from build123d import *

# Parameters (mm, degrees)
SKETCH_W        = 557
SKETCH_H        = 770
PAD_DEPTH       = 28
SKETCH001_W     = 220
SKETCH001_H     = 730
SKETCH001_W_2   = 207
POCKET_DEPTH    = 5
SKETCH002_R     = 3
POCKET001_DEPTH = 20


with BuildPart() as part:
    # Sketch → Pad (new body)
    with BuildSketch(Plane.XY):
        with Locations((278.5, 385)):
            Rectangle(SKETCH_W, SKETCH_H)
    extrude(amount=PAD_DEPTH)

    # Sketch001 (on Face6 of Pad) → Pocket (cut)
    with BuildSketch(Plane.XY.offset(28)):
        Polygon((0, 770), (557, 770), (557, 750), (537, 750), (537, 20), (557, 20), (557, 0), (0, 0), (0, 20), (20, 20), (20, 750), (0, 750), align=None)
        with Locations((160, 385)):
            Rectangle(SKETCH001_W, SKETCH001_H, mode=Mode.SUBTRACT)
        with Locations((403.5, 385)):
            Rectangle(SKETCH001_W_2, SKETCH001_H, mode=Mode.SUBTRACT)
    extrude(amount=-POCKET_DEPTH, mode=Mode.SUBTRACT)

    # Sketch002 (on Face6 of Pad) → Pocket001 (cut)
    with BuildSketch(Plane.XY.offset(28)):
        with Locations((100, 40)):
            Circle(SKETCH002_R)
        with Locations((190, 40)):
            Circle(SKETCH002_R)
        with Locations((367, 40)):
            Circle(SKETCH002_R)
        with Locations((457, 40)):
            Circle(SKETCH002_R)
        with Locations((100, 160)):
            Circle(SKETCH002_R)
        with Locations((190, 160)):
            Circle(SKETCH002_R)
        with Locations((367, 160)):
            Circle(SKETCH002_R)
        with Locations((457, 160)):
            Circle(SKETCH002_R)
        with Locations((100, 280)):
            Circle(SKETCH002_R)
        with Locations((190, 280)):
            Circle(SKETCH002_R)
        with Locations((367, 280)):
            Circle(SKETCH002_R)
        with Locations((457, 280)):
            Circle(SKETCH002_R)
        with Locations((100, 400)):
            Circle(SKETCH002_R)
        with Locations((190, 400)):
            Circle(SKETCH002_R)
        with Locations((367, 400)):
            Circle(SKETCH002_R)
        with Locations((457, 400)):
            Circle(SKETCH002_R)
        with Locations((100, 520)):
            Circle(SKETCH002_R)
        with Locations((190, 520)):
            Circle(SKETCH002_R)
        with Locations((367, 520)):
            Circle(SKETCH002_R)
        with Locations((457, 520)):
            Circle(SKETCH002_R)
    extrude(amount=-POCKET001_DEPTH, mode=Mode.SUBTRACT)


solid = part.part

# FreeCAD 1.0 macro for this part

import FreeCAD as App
import Part
import Sketcher
from FreeCAD import Vector
Q = App.Units.Quantity

doc = App.newDocument("Part")
body = doc.addObject("PartDesign::Body", "Body")

# Sketch on XY plane
sketch1 = doc.addObject("Sketcher::SketchObject", "Sketch")
body.addObject(sketch1)
sketch1.AttachmentSupport = (doc.XY_Plane, [""])
sketch1.MapMode = "FlatFace"
sketch1.addGeometry([
    Part.LineSegment(Vector(0, 770, 0), Vector(0, 0, 0)),
    Part.LineSegment(Vector(0, 0, 0), Vector(557, 0, 0)),
    Part.LineSegment(Vector(557, 0, 0), Vector(557, 770, 0)),
    Part.LineSegment(Vector(557, 770, 0), Vector(0, 770, 0)),
], False)
sketch1.addConstraint([
    Sketcher.Constraint("Coincident", 0, 2, 1, 1),
    Sketcher.Constraint("Coincident", 1, 2, 2, 1),
    Sketcher.Constraint("Coincident", 2, 2, 3, 1),
    Sketcher.Constraint("Coincident", 3, 2, 0, 1),
    Sketcher.Constraint("Vertical", 0),
    Sketcher.Constraint("Horizontal", 1),
    Sketcher.Constraint("Vertical", 2),
    Sketcher.Constraint("Horizontal", 3),
    Sketcher.Constraint("Coincident", 0, 2, -1, 1),
    Sketcher.Constraint("DistanceX", 1, 1, 1, 2, Q("557 mm")),
    Sketcher.Constraint("DistanceY", 0, 2, 0, 1, Q("770 mm")),
])
pad1 = doc.addObject("PartDesign::Pad", "Pad")
body.addObject(pad1)
pad1.Profile = sketch1
pad1.Length = 28

# Sketch on XY plane
sketch2 = doc.addObject("Sketcher::SketchObject", "Sketch001")
body.addObject(sketch2)
sketch2.AttachmentSupport = (doc.XY_Plane, [""])
sketch2.MapMode = "FlatFace"
sketch2.AttachmentOffset = App.Placement(Vector(0, 0, 28), App.Rotation())
sketch2.addGeometry([
    Part.LineSegment(Vector(557, 770, 0), Vector(0, 770, 0)),  # 0
    Part.LineSegment(Vector(0, 770, 0), Vector(0, 750, 0)),  # 1
    Part.LineSegment(Vector(0, 750, 0), Vector(20, 750, 0)),  # 2
    Part.LineSegment(Vector(20, 750, 0), Vector(20, 20, 0)),  # 3
    Part.LineSegment(Vector(20, 20, 0), Vector(0, 20, 0)),  # 4
    Part.LineSegment(Vector(0, 20, 0), Vector(0, 0, 0)),  # 5
    Part.LineSegment(Vector(0, 0, 0), Vector(557, 0, 0)),  # 6
    Part.LineSegment(Vector(557, 0, 0), Vector(557, 20, 0)),  # 7
    Part.LineSegment(Vector(557, 20, 0), Vector(537, 20, 0)),  # 8
    Part.LineSegment(Vector(537, 20, 0), Vector(537, 750, 0)),  # 9
    Part.LineSegment(Vector(537, 750, 0), Vector(557, 750, 0)),  # 10
    Part.LineSegment(Vector(557, 750, 0), Vector(557, 770, 0)),  # 11
    Part.LineSegment(Vector(300, 20, 0), Vector(300, 750, 0)),  # 12
    Part.LineSegment(Vector(300, 750, 0), Vector(507, 750, 0)),  # 13
    Part.LineSegment(Vector(507, 750, 0), Vector(507, 20, 0)),  # 14
    Part.LineSegment(Vector(507, 20, 0), Vector(300, 20, 0)),  # 15
    Part.LineSegment(Vector(50, 20, 0), Vector(50, 750, 0)),  # 16
    Part.LineSegment(Vector(50, 750, 0), Vector(270, 750, 0)),  # 17
    Part.LineSegment(Vector(270, 750, 0), Vector(270, 20, 0)),  # 18
    Part.LineSegment(Vector(270, 20, 0), Vector(50, 20, 0)),  # 19
], False)
sketch2.addConstraint([
    Sketcher.Constraint("Coincident", 0, 2, 1, 1),
    Sketcher.Constraint("Coincident", 1, 2, 2, 1),
    Sketcher.Constraint("Coincident", 2, 2, 3, 1),
    Sketcher.Constraint("Coincident", 3, 2, 4, 1),
    Sketcher.Constraint("Coincident", 4, 2, 5, 1),
    Sketcher.Constraint("Coincident", 5, 2, 6, 1),
    Sketcher.Constraint("Coincident", 6, 2, 7, 1),
    Sketcher.Constraint("Coincident", 7, 2, 8, 1),
    Sketcher.Constraint("Coincident", 8, 2, 9, 1),
    Sketcher.Constraint("Coincident", 9, 2, 10, 1),
    Sketcher.Constraint("Coincident", 10, 2, 11, 1),
    Sketcher.Constraint("Coincident", 11, 2, 0, 1),
    Sketcher.Constraint("Coincident", 12, 2, 13, 1),
    Sketcher.Constraint("Coincident", 13, 2, 14, 1),
    Sketcher.Constraint("Coincident", 14, 2, 15, 1),
    Sketcher.Constraint("Coincident", 15, 2, 12, 1),
    Sketcher.Constraint("Coincident", 16, 2, 17, 1),
    Sketcher.Constraint("Coincident", 17, 2, 18, 1),
    Sketcher.Constraint("Coincident", 18, 2, 19, 1),
    Sketcher.Constraint("Coincident", 19, 2, 16, 1),
    Sketcher.Constraint("Horizontal", 0),
    Sketcher.Constraint("Vertical", 1),
    Sketcher.Constraint("Horizontal", 2),
    Sketcher.Constraint("Vertical", 3),
    Sketcher.Constraint("Horizontal", 4),
    Sketcher.Constraint("Vertical", 5),
    Sketcher.Constraint("Horizontal", 6),
    Sketcher.Constraint("Vertical", 7),
    Sketcher.Constraint("Horizontal", 8),
    Sketcher.Constraint("Vertical", 9),
    Sketcher.Constraint("Horizontal", 10),
    Sketcher.Constraint("Vertical", 11),
    Sketcher.Constraint("Vertical", 12),
    Sketcher.Constraint("Horizontal", 13),
    Sketcher.Constraint("Vertical", 14),
    Sketcher.Constraint("Horizontal", 15),
    Sketcher.Constraint("Vertical", 16),
    Sketcher.Constraint("Horizontal", 17),
    Sketcher.Constraint("Vertical", 18),
    Sketcher.Constraint("Horizontal", 19),
    Sketcher.Constraint("Coincident", 5, 2, -1, 1),
    Sketcher.Constraint("PointOnObject", 0, 2, -2),
    Sketcher.Constraint("Horizontal", 4, 2, 7, 2),
    Sketcher.Constraint("Horizontal", 2, 2, 9, 2),
    Sketcher.Constraint("Horizontal", 10, 2, 12, 2),
    Sketcher.Constraint("Horizontal", 8, 2, 14, 2),
    Sketcher.Constraint("Horizontal", 13, 2, 16, 2),
    Sketcher.Constraint("Horizontal", 15, 2, 18, 2),
    Sketcher.Constraint("Vertical", 7, 2, 10, 2),
    Sketcher.Constraint("Equal", 4, 8),
    Sketcher.Constraint("Equal", 10, 1),
    Sketcher.Constraint("Equal", 1, 5),
    Sketcher.Constraint("DistanceX", 0, 2, 0, 1, Q("557 mm")),
    Sketcher.Constraint("DistanceX", 2, 1, 2, 2, Q("20 mm")),
    Sketcher.Constraint("DistanceX", 13, 1, 13, 2, Q("207 mm")),
    Sketcher.Constraint("DistanceX", 17, 1, 17, 2, Q("220 mm")),
    Sketcher.Constraint("DistanceY", 3, 2, 3, 1, Q("730 mm")),
    Sketcher.Constraint("DistanceX", -1, 1, 12, 2, Q("300 mm")),
    Sketcher.Constraint("DistanceX", -1, 1, 16, 2, Q("50 mm")),
])
pocket1 = doc.addObject("PartDesign::Pocket", "Pocket")
body.addObject(pocket1)
pocket1.Profile = sketch2
pocket1.Length = 5

# Sketch on XY plane
sketch3 = doc.addObject("Sketcher::SketchObject", "Sketch002")
body.addObject(sketch3)
sketch3.AttachmentSupport = (doc.XY_Plane, [""])
sketch3.MapMode = "FlatFace"
sketch3.AttachmentOffset = App.Placement(Vector(0, 0, 28), App.Rotation())
sketch3.addGeometry([
    Part.Circle(Vector(100, 40, 0), Vector(0, 0, 1), 3),  # 0
    Part.Circle(Vector(190, 40, 0), Vector(0, 0, 1), 3),  # 1
    Part.Circle(Vector(367, 40, 0), Vector(0, 0, 1), 3),  # 2
    Part.Circle(Vector(457, 40, 0), Vector(0, 0, 1), 3),  # 3
    Part.Circle(Vector(100, 160, 0), Vector(0, 0, 1), 3),  # 4
    Part.Circle(Vector(190, 160, 0), Vector(0, 0, 1), 3),  # 5
    Part.Circle(Vector(367, 160, 0), Vector(0, 0, 1), 3),  # 6
    Part.Circle(Vector(457, 160, 0), Vector(0, 0, 1), 3),  # 7
    Part.Circle(Vector(100, 280, 0), Vector(0, 0, 1), 3),  # 8
    Part.Circle(Vector(190, 280, 0), Vector(0, 0, 1), 3),  # 9
    Part.Circle(Vector(367, 280, 0), Vector(0, 0, 1), 3),  # 10
    Part.Circle(Vector(457, 280, 0), Vector(0, 0, 1), 3),  # 11
    Part.Circle(Vector(100, 400, 0), Vector(0, 0, 1), 3),  # 12
    Part.Circle(Vector(190, 400, 0), Vector(0, 0, 1), 3),  # 13
    Part.Circle(Vector(367, 400, 0), Vector(0, 0, 1), 3),  # 14
    Part.Circle(Vector(457, 400, 0), Vector(0, 0, 1), 3),  # 15
    Part.Circle(Vector(100, 520, 0), Vector(0, 0, 1), 3),  # 16
    Part.Circle(Vector(190, 520, 0), Vector(0, 0, 1), 3),  # 17
    Part.Circle(Vector(367, 520, 0), Vector(0, 0, 1), 3),  # 18
    Part.Circle(Vector(457, 520, 0), Vector(0, 0, 1), 3),  # 19
], False)
sketch3.addConstraint([
    Sketcher.Constraint("Equal", 0, 1),
    Sketcher.Constraint("Equal", 1, 2),
    Sketcher.Constraint("Equal", 2, 3),
    Sketcher.Constraint("Equal", 3, 4),
    Sketcher.Constraint("Equal", 4, 5),
    Sketcher.Constraint("Equal", 5, 6),
    Sketcher.Constraint("Equal", 6, 7),
    Sketcher.Constraint("Equal", 7, 8),
    Sketcher.Constraint("Equal", 8, 9),
    Sketcher.Constraint("Equal", 9, 10),
    Sketcher.Constraint("Equal", 10, 11),
    Sketcher.Constraint("Equal", 11, 12),
    Sketcher.Constraint("Equal", 12, 13),
    Sketcher.Constraint("Equal", 13, 14),
    Sketcher.Constraint("Equal", 14, 15),
    Sketcher.Constraint("Equal", 15, 16),
    Sketcher.Constraint("Equal", 16, 17),
    Sketcher.Constraint("Equal", 17, 18),
    Sketcher.Constraint("Equal", 18, 19),
    Sketcher.Constraint("Horizontal", 0, 3, 1, 3),
    Sketcher.Constraint("Horizontal", 1, 3, 2, 3),
    Sketcher.Constraint("Horizontal", 2, 3, 3, 3),
    Sketcher.Constraint("Horizontal", 4, 3, 5, 3),
    Sketcher.Constraint("Horizontal", 5, 3, 6, 3),
    Sketcher.Constraint("Horizontal", 6, 3, 7, 3),
    Sketcher.Constraint("Horizontal", 8, 3, 9, 3),
    Sketcher.Constraint("Horizontal", 9, 3, 10, 3),
    Sketcher.Constraint("Horizontal", 10, 3, 11, 3),
    Sketcher.Constraint("Horizontal", 12, 3, 13, 3),
    Sketcher.Constraint("Horizontal", 13, 3, 14, 3),
    Sketcher.Constraint("Horizontal", 14, 3, 15, 3),
    Sketcher.Constraint("Horizontal", 16, 3, 17, 3),
    Sketcher.Constraint("Horizontal", 17, 3, 18, 3),
    Sketcher.Constraint("Horizontal", 18, 3, 19, 3),
    Sketcher.Constraint("Vertical", 0, 3, 4, 3),
    Sketcher.Constraint("Vertical", 1, 3, 5, 3),
    Sketcher.Constraint("Vertical", 2, 3, 6, 3),
    Sketcher.Constraint("Vertical", 3, 3, 7, 3),
    Sketcher.Constraint("Vertical", 4, 3, 8, 3),
    Sketcher.Constraint("Vertical", 5, 3, 9, 3),
    Sketcher.Constraint("Vertical", 6, 3, 10, 3),
    Sketcher.Constraint("Vertical", 7, 3, 11, 3),
    Sketcher.Constraint("Vertical", 8, 3, 12, 3),
    Sketcher.Constraint("Vertical", 9, 3, 13, 3),
    Sketcher.Constraint("Vertical", 10, 3, 14, 3),
    Sketcher.Constraint("Vertical", 11, 3, 15, 3),
    Sketcher.Constraint("Vertical", 12, 3, 16, 3),
    Sketcher.Constraint("Vertical", 13, 3, 17, 3),
    Sketcher.Constraint("Vertical", 14, 3, 18, 3),
    Sketcher.Constraint("Vertical", 15, 3, 19, 3),
    Sketcher.Constraint("Diameter", 0, Q("6 mm")),
    Sketcher.Constraint("DistanceX", -1, 1, 0, 3, Q("100 mm")),
    Sketcher.Constraint("DistanceY", -1, 1, 0, 3, Q("40 mm")),
    Sketcher.Constraint("DistanceX", -1, 1, 1, 3, Q("190 mm")),
    Sketcher.Constraint("DistanceX", -1, 1, 2, 3, Q("367 mm")),
    Sketcher.Constraint("DistanceX", -1, 1, 3, 3, Q("457 mm")),
    Sketcher.Constraint("DistanceY", -1, 1, 4, 3, Q("160 mm")),
    Sketcher.Constraint("DistanceY", -1, 1, 8, 3, Q("280 mm")),
    Sketcher.Constraint("DistanceY", -1, 1, 12, 3, Q("400 mm")),
    Sketcher.Constraint("DistanceY", -1, 1, 16, 3, Q("520 mm")),
])
pocket2 = doc.addObject("PartDesign::Pocket", "Pocket001")
body.addObject(pocket2)
pocket2.Profile = sketch3
pocket2.Length = 20

doc.recompute()
